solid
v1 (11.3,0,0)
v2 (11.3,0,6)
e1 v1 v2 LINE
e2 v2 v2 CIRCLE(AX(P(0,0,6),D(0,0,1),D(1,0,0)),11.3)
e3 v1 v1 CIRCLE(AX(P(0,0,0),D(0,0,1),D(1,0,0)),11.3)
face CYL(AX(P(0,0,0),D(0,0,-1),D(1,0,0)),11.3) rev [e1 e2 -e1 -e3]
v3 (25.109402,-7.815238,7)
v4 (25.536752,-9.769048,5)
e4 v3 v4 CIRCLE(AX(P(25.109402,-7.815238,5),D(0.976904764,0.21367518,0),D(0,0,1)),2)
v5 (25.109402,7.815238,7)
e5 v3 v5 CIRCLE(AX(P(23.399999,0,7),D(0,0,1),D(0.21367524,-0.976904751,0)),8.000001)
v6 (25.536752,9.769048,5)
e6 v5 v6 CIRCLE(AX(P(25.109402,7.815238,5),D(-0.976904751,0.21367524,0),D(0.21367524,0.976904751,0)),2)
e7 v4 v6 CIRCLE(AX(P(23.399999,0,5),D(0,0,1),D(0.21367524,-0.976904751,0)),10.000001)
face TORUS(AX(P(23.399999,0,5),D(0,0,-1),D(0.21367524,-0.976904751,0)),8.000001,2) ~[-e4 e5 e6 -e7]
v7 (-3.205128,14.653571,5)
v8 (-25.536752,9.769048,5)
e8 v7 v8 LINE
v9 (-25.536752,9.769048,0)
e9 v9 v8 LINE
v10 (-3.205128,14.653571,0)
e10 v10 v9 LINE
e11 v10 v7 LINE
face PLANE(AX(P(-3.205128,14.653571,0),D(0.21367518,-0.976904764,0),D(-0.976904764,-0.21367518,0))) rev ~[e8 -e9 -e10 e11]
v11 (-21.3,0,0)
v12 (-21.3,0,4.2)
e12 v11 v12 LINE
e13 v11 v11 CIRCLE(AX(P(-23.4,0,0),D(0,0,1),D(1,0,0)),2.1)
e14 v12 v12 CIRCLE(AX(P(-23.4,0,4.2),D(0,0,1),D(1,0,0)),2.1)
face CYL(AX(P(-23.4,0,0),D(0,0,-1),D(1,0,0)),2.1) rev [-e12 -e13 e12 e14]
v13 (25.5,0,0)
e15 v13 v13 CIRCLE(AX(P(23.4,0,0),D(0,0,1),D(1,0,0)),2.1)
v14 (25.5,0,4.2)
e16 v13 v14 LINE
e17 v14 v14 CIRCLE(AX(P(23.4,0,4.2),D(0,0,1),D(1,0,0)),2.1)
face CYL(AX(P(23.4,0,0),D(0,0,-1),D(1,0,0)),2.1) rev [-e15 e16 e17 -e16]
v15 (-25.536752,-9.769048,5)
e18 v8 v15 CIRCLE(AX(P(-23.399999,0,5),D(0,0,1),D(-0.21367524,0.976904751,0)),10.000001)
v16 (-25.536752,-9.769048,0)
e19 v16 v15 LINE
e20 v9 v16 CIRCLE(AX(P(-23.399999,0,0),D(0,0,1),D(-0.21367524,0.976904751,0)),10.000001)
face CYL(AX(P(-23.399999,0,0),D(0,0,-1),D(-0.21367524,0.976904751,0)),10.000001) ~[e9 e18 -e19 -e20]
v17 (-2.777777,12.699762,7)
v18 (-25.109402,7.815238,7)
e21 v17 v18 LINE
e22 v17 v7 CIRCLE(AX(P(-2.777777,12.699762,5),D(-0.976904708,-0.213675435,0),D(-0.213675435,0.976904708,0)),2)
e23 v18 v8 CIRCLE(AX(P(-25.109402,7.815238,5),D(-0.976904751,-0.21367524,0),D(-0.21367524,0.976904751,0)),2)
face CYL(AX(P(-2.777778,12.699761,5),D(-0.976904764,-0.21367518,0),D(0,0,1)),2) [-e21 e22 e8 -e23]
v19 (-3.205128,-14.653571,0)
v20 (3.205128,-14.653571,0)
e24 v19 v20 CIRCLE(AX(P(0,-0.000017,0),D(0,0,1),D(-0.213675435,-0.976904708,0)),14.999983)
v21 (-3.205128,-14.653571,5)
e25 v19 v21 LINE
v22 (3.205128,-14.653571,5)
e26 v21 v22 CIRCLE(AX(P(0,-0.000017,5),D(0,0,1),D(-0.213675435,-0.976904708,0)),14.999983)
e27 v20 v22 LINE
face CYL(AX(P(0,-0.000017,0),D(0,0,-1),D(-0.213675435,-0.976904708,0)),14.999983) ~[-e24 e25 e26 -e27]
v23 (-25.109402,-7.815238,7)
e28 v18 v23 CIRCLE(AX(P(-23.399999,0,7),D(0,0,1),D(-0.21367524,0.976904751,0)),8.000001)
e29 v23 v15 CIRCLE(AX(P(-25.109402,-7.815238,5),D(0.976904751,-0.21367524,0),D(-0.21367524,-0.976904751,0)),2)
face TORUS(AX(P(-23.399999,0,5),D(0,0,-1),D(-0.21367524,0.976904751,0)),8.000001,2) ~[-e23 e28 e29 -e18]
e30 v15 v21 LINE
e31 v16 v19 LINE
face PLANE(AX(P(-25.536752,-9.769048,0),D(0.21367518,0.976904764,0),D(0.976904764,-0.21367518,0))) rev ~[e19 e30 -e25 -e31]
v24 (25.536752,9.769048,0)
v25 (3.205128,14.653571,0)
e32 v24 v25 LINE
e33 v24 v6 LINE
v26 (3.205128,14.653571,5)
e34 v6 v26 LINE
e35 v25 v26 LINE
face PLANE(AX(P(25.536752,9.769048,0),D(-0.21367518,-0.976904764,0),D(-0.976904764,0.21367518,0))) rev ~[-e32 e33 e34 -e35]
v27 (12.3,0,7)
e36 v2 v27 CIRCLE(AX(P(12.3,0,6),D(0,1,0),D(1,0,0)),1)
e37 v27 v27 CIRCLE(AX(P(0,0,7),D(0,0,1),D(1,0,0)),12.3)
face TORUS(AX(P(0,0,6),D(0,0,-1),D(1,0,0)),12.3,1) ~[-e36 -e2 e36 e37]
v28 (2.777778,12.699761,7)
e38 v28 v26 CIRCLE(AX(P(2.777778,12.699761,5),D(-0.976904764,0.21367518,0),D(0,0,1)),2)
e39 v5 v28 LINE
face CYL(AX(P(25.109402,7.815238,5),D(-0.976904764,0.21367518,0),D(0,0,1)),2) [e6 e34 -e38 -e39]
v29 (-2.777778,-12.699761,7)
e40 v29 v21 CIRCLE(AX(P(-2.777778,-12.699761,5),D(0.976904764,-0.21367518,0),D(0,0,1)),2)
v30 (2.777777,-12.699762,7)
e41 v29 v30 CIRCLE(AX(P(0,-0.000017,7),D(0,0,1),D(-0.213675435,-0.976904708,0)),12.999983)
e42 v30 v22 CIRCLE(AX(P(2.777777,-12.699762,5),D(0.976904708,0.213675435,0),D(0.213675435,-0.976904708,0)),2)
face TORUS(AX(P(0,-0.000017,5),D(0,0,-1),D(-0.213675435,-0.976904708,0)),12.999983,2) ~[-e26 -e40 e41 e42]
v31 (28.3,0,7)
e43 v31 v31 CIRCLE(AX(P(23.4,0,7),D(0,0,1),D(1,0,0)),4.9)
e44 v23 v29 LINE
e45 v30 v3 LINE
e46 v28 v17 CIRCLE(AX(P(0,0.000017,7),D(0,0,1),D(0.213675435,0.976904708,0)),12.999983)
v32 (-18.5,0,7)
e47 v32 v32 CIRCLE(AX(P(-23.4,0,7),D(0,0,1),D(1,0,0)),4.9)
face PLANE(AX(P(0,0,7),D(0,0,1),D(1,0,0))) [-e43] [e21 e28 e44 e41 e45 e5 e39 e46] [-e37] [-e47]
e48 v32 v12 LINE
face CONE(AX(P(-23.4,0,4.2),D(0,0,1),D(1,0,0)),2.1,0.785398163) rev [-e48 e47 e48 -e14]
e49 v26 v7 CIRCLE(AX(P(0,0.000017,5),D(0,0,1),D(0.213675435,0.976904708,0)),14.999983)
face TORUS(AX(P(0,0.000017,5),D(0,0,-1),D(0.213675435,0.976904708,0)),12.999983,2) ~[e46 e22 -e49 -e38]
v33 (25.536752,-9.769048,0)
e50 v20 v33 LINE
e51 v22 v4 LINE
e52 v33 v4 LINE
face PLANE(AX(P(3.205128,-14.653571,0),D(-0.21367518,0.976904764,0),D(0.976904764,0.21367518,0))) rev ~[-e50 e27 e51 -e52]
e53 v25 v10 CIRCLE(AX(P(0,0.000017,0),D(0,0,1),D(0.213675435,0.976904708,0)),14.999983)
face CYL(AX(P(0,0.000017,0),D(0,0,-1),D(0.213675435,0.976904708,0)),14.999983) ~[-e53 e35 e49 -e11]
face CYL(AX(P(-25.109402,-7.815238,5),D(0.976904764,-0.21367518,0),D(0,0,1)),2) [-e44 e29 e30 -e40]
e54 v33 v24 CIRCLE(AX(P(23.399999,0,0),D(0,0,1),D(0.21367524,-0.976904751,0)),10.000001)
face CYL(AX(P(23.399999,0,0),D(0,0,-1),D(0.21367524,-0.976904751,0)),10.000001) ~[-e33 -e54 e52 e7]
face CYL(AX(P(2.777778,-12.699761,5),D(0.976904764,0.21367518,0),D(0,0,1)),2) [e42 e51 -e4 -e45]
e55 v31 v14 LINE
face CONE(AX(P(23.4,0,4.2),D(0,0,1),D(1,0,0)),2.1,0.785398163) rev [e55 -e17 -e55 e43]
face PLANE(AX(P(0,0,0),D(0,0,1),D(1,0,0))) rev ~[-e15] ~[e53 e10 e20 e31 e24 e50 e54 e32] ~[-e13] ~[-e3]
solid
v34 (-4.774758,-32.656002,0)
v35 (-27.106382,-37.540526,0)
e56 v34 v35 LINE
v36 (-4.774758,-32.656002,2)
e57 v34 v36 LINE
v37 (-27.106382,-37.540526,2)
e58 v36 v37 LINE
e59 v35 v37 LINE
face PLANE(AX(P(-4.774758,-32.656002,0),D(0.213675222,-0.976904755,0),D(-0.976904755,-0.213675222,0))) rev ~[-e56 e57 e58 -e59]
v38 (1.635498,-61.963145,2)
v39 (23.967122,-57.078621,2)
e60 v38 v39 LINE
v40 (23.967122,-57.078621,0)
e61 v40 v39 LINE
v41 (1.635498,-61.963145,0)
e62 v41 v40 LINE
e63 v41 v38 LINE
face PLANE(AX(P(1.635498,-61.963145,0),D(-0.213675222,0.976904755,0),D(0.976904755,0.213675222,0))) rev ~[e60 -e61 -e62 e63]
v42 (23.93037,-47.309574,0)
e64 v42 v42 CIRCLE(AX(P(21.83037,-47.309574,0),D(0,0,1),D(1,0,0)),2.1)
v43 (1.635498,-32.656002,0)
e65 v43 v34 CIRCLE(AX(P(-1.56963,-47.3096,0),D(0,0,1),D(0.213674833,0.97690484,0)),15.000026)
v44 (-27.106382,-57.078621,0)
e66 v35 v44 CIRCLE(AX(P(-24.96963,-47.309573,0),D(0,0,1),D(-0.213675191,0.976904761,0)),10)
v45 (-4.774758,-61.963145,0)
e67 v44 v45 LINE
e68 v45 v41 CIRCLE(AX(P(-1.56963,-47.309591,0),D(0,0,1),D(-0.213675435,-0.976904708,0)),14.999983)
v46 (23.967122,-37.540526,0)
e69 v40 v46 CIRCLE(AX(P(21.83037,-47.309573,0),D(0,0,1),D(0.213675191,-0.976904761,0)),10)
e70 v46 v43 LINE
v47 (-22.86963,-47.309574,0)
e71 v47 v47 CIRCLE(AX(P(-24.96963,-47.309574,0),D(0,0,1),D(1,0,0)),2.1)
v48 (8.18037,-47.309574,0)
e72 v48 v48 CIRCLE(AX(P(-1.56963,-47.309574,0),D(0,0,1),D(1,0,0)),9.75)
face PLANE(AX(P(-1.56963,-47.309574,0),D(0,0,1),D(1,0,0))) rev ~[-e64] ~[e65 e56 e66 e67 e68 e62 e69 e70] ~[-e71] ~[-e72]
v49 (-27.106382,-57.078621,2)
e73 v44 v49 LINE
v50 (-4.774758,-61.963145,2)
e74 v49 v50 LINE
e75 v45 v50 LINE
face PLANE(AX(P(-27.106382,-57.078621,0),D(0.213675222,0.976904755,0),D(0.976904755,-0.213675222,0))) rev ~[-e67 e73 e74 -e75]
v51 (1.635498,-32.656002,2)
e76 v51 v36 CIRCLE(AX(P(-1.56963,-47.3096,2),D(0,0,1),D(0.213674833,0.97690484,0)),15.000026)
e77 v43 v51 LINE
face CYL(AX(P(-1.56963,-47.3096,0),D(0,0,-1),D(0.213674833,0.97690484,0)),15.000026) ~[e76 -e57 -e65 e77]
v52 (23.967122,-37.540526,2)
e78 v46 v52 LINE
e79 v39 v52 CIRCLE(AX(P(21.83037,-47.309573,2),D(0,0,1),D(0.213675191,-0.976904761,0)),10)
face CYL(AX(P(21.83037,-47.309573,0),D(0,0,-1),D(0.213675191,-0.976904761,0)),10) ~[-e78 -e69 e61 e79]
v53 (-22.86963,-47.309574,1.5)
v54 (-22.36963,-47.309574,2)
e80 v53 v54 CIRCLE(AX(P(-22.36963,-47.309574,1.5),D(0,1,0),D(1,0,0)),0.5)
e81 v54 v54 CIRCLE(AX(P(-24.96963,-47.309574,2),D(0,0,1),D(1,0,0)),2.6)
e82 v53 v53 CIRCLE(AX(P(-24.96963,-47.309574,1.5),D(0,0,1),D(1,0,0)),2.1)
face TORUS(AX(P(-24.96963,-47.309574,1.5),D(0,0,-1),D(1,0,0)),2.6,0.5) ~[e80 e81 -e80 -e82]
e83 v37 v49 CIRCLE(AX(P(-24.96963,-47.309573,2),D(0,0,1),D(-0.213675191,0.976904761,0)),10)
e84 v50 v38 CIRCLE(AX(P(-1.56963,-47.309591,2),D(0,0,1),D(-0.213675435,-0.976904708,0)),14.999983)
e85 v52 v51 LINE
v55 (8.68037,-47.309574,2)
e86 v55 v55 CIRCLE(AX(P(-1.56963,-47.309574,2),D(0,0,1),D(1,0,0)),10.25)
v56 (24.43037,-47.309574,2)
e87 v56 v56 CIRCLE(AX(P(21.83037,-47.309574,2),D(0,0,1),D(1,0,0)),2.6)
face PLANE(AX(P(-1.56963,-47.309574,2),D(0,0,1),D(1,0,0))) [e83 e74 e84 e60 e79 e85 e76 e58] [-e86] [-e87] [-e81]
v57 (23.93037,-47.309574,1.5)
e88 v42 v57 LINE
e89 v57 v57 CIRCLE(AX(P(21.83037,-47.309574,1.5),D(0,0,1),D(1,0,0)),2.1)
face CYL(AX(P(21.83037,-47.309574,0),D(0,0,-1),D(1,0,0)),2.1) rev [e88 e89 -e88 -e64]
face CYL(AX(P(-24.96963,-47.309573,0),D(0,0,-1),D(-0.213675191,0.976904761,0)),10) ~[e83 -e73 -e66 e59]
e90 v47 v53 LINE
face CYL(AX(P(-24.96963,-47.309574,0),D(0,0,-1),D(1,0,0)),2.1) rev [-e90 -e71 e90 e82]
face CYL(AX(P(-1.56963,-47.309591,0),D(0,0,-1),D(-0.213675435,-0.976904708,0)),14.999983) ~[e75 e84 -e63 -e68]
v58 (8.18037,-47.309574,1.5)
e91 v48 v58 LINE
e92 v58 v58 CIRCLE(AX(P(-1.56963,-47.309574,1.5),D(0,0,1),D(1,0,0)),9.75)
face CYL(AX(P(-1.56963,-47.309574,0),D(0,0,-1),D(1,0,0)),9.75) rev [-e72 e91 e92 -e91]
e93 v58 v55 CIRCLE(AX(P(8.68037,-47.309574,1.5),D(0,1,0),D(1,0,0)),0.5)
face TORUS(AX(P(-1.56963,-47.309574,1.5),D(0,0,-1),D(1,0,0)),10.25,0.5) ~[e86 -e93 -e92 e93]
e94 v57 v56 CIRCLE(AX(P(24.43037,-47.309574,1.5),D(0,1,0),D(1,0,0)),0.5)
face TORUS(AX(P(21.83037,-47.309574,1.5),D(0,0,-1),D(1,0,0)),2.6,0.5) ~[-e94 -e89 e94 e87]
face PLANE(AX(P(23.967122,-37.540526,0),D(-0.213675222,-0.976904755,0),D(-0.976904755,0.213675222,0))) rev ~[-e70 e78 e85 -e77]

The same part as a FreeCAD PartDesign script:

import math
import FreeCAD as App
import Part
import Sketcher
Q = App.Units.Quantity


def edges_at(feature, points):
    """Names of the edges that pass closest to the given points."""
    edges = feature.Shape.Edges
    near = lambda p: min(range(len(edges)), key=lambda i: edges[i].distToShape(Part.Vertex(*p))[0])
    return sorted({f"Edge{near(p) + 1}" for p in points})

doc = App.newDocument("Part")
body = doc.addObject("PartDesign::Body", "Body")

sketch1 = body.newObject("Sketcher::SketchObject", "Sketch")
sketch1.AttachmentSupport = (doc.getObject("XY_Plane"), [""])
sketch1.MapMode = "FlatFace"
sketch1.addGeometry([
    Part.LineSegment(App.Vector(-25.536752, -9.769048, 0), App.Vector(-3.205128, -14.653571, 0)),
    Part.ArcOfCircle(Part.Circle(App.Vector(0, -0.000017, 0), App.Vector(0, 0, 1), 14.999983), math.radians(-102.33783), math.radians(-77.66217)),
    Part.LineSegment(App.Vector(3.205128, -14.653571, 0), App.Vector(25.536752, -9.769048, 0)),
    Part.ArcOfCircle(Part.Circle(App.Vector(23.399999, 0, 0), App.Vector(0, 0, 1), 10.000001), math.radians(-77.662182), math.radians(77.662182)),
    Part.LineSegment(App.Vector(25.536752, 9.769048, 0), App.Vector(3.205128, 14.653571, 0)),
    Part.ArcOfCircle(Part.Circle(App.Vector(0, 0.000017, 0), App.Vector(0, 0, 1), 14.999983), math.radians(77.66217), math.radians(102.33783)),
    Part.LineSegment(App.Vector(-3.205128, 14.653571, 0), App.Vector(-25.536752, 9.769048, 0)),
    Part.ArcOfCircle(Part.Circle(App.Vector(-23.399999, 0, 0), App.Vector(0, 0, 1), 10.000001), math.radians(102.337818), math.radians(257.662182)),
    Part.Circle(App.Vector(-23.4, 0, 0), App.Vector(0, 0, 1), 2.1),
    Part.Circle(App.Vector(0, 0, 0), App.Vector(0, 0, 1), 11.3),
    Part.Circle(App.Vector(23.4, 0, 0), App.Vector(0, 0, 1), 2.1),
], False)
sketch1.addConstraint([
    Sketcher.Constraint("Tangent", 0, 2, 1, 1),
    Sketcher.Constraint("Tangent", 1, 2, 2, 1),
    Sketcher.Constraint("Tangent", 2, 2, 3, 1),
    Sketcher.Constraint("Tangent", 3, 2, 4, 1),
    Sketcher.Constraint("Tangent", 4, 2, 5, 1),
    Sketcher.Constraint("Tangent", 5, 2, 6, 1),
    Sketcher.Constraint("Tangent", 6, 2, 7, 1),
    Sketcher.Constraint("Tangent", 7, 2, 0, 1),
    Sketcher.Constraint("Coincident", 9, 3, -1, 1),
    Sketcher.Constraint("Coincident", 8, 3, 7, 3),
    Sketcher.Constraint("Coincident", 10, 3, 3, 3),
    Sketcher.Constraint("Equal", 1, 5),
    Sketcher.Constraint("Equal", 3, 7),
    Sketcher.Constraint("Equal", 8, 10),
    Sketcher.Constraint("Symmetric", 1, 3, 5, 3, -1, 1),
    Sketcher.Constraint("Symmetric", 3, 3, 7, 3, -1, 1),
    Sketcher.Constraint("Symmetric", 0, 2, 1, 2, -2),
    Sketcher.Constraint("Radius", 3, Q("10.000001 mm")),
    Sketcher.Constraint("Diameter", 8, Q("4.2 mm")),
    Sketcher.Constraint("Diameter", 9, Q("22.6 mm")),
    Sketcher.Constraint("DistanceX", -1, 1, 3, 3, Q("23.399999 mm")),
    Sketcher.Constraint("Radius", 1, Q("14.999983 mm")),
    Sketcher.Constraint("DistanceX", 0, 2, -1, 1, Q("3.205128 mm")),
])
pad1 = body.newObject("PartDesign::Pad", "Pad")
pad1.Profile = sketch1
pad1.Length = 7
doc.recompute()

fillet = body.newObject("PartDesign::Fillet", "Fillet")
fillet.Base = (pad1, edges_at(pad1, [(-11.3, 0, 7)]))
fillet.Radius = 1
doc.recompute()

fillet2 = body.newObject("PartDesign::Fillet", "Fillet001")
fillet2.Base = (fillet, edges_at(fillet, [
    (-33.4, 0, 7),
    (-14.371, -12.211, 7),
    (-14.371, 12.211, 7),
    (0, -15, 7),
    (14.371, -12.211, 7),
    (33.4, 0, 7),
    (14.371, 12.211, 7),
    (0, 15, 7),
]))
fillet2.Radius = 2
doc.recompute()

chamfer = body.newObject("PartDesign::Chamfer", "Chamfer")
chamfer.Base = (fillet2, edges_at(fillet2, [(-25.5, 0, 7), (21.3, 0, 7)]))
chamfer.Size = 2.8
body2 = doc.addObject("PartDesign::Body", "Body001")

sketch2 = body2.newObject("Sketcher::SketchObject", "Sketch001")
sketch2.AttachmentSupport = (doc.getObject("XY_Plane001"), [""])
sketch2.MapMode = "FlatFace"
sketch2.addGeometry([
    Part.LineSegment(App.Vector(-27.106382, -57.078621, 0), App.Vector(-4.774758, -61.963145, 0)),
    Part.ArcOfCircle(Part.Circle(App.Vector(-1.56963, -47.309591, 0), App.Vector(0, 0, 1), 14.999983), math.radians(-102.33783), math.radians(-77.66217)),
    Part.LineSegment(App.Vector(1.635498, -61.963145, 0), App.Vector(23.967122, -57.078621, 0)),
    Part.ArcOfCircle(Part.Circle(App.Vector(21.83037, -47.309573, 0), App.Vector(0, 0, 1), 10), math.radians(-77.662185), math.radians(77.662185)),
    Part.LineSegment(App.Vector(23.967122, -37.540526, 0), App.Vector(1.635498, -32.656002, 0)),
    Part.ArcOfCircle(Part.Circle(App.Vector(-1.56963, -47.3096, 0), App.Vector(0, 0, 1), 15.000026), math.radians(77.662206), math.radians(102.337794)),
    Part.LineSegment(App.Vector(-4.774758, -32.656002, 0), App.Vector(-27.106382, -37.540526, 0)),
    Part.ArcOfCircle(Part.Circle(App.Vector(-24.96963, -47.309573, 0), App.Vector(0, 0, 1), 10), math.radians(102.337815), math.radians(257.662185)),
    Part.Circle(App.Vector(-24.96963, -47.309574, 0), App.Vector(0, 0, 1), 2.1),
    Part.Circle(App.Vector(-1.56963, -47.309574, 0), App.Vector(0, 0, 1), 9.75),
    Part.Circle(App.Vector(21.83037, -47.309574, 0), App.Vector(0, 0, 1), 2.1),
], False)
sketch2.addConstraint([
    Sketcher.Constraint("Coincident", 0, 2, 1, 1),
    Sketcher.Constraint("Coincident", 1, 2, 2, 1),
    Sketcher.Constraint("Coincident", 2, 2, 3, 1),
    Sketcher.Constraint("Coincident", 3, 2, 4, 1),
    Sketcher.Constraint("Coincident", 4, 2, 5, 1),
    Sketcher.Constraint("Coincident", 5, 2, 6, 1),
    Sketcher.Constraint("Coincident", 6, 2, 7, 1),
    Sketcher.Constraint("Coincident", 7, 2, 0, 1),
    Sketcher.Constraint("Coincident", 5, 3, 1, 3),
    Sketcher.Constraint("Coincident", 8, 3, 7, 3),
    Sketcher.Constraint("Coincident", 10, 3, 3, 3),
    Sketcher.Constraint("Radius", 3, Q("10 mm")),
    Sketcher.Constraint("Radius", 7, Q("10 mm")),
    Sketcher.Constraint("Diameter", 8, Q("4.2 mm")),
    Sketcher.Constraint("Diameter", 9, Q("19.5 mm")),
    Sketcher.Constraint("Diameter", 10, Q("4.2 mm")),
    Sketcher.Constraint("DistanceX", 1, 3, 3, 3, Q("23.4 mm")),
    Sketcher.Constraint("DistanceX", 7, 3, 1, 3, Q("23.4 mm")),
    Sketcher.Constraint("DistanceX", 8, 3, 9, 3, Q("23.4 mm")),
    Sketcher.Constraint("DistanceY", 5, 2, -1, 1, Q("32.656002 mm")),
    Sketcher.Constraint("Radius", 1, Q("14.999983 mm")),
    Sketcher.Constraint("Radius", 5, Q("15.000026 mm")),
    Sketcher.Constraint("DistanceY", 5, 3, -1, 1, Q("47.3096 mm")),
    Sketcher.Constraint("DistanceX", -1, 1, 1, 2, Q("1.635498 mm")),
    Sketcher.Constraint("Distance", 0, Q("22.859571 mm")),
    Sketcher.Constraint("Distance", 2, Q("22.859571 mm")),
    Sketcher.Constraint("Distance", 4, Q("22.859571 mm")),
    Sketcher.Constraint("Distance", 6, Q("22.859571 mm")),
    Sketcher.Constraint("DistanceX", 1, 3, -1, 1, Q("1.56963 mm")),
    Sketcher.Constraint("DistanceX", 0, 2, -1, 1, Q("4.774758 mm")),
    Sketcher.Constraint("DistanceX", -1, 1, 2, 2, Q("23.967122 mm")),
    Sketcher.Constraint("DistanceX", -1, 1, 3, 2, Q("23.967122 mm")),
    Sketcher.Constraint("DistanceX", 6, 2, -1, 1, Q("27.106382 mm")),
    Sketcher.Constraint("DistanceY", 0, 2, 9, 3, Q("14.653571 mm")),
])
pad2 = body2.newObject("PartDesign::Pad", "Pad001")
pad2.Profile = sketch2
pad2.Length = 2
doc.recompute()

fillet3 = body2.newObject("PartDesign::Fillet", "Fillet002")
fillet3.Base = (pad2, edges_at(pad2, [(-27.07, -47.31, 2), (-11.32, -47.31, 2), (19.73, -47.31, 2)]))
fillet3.Radius = 0.5

doc.recompute()
